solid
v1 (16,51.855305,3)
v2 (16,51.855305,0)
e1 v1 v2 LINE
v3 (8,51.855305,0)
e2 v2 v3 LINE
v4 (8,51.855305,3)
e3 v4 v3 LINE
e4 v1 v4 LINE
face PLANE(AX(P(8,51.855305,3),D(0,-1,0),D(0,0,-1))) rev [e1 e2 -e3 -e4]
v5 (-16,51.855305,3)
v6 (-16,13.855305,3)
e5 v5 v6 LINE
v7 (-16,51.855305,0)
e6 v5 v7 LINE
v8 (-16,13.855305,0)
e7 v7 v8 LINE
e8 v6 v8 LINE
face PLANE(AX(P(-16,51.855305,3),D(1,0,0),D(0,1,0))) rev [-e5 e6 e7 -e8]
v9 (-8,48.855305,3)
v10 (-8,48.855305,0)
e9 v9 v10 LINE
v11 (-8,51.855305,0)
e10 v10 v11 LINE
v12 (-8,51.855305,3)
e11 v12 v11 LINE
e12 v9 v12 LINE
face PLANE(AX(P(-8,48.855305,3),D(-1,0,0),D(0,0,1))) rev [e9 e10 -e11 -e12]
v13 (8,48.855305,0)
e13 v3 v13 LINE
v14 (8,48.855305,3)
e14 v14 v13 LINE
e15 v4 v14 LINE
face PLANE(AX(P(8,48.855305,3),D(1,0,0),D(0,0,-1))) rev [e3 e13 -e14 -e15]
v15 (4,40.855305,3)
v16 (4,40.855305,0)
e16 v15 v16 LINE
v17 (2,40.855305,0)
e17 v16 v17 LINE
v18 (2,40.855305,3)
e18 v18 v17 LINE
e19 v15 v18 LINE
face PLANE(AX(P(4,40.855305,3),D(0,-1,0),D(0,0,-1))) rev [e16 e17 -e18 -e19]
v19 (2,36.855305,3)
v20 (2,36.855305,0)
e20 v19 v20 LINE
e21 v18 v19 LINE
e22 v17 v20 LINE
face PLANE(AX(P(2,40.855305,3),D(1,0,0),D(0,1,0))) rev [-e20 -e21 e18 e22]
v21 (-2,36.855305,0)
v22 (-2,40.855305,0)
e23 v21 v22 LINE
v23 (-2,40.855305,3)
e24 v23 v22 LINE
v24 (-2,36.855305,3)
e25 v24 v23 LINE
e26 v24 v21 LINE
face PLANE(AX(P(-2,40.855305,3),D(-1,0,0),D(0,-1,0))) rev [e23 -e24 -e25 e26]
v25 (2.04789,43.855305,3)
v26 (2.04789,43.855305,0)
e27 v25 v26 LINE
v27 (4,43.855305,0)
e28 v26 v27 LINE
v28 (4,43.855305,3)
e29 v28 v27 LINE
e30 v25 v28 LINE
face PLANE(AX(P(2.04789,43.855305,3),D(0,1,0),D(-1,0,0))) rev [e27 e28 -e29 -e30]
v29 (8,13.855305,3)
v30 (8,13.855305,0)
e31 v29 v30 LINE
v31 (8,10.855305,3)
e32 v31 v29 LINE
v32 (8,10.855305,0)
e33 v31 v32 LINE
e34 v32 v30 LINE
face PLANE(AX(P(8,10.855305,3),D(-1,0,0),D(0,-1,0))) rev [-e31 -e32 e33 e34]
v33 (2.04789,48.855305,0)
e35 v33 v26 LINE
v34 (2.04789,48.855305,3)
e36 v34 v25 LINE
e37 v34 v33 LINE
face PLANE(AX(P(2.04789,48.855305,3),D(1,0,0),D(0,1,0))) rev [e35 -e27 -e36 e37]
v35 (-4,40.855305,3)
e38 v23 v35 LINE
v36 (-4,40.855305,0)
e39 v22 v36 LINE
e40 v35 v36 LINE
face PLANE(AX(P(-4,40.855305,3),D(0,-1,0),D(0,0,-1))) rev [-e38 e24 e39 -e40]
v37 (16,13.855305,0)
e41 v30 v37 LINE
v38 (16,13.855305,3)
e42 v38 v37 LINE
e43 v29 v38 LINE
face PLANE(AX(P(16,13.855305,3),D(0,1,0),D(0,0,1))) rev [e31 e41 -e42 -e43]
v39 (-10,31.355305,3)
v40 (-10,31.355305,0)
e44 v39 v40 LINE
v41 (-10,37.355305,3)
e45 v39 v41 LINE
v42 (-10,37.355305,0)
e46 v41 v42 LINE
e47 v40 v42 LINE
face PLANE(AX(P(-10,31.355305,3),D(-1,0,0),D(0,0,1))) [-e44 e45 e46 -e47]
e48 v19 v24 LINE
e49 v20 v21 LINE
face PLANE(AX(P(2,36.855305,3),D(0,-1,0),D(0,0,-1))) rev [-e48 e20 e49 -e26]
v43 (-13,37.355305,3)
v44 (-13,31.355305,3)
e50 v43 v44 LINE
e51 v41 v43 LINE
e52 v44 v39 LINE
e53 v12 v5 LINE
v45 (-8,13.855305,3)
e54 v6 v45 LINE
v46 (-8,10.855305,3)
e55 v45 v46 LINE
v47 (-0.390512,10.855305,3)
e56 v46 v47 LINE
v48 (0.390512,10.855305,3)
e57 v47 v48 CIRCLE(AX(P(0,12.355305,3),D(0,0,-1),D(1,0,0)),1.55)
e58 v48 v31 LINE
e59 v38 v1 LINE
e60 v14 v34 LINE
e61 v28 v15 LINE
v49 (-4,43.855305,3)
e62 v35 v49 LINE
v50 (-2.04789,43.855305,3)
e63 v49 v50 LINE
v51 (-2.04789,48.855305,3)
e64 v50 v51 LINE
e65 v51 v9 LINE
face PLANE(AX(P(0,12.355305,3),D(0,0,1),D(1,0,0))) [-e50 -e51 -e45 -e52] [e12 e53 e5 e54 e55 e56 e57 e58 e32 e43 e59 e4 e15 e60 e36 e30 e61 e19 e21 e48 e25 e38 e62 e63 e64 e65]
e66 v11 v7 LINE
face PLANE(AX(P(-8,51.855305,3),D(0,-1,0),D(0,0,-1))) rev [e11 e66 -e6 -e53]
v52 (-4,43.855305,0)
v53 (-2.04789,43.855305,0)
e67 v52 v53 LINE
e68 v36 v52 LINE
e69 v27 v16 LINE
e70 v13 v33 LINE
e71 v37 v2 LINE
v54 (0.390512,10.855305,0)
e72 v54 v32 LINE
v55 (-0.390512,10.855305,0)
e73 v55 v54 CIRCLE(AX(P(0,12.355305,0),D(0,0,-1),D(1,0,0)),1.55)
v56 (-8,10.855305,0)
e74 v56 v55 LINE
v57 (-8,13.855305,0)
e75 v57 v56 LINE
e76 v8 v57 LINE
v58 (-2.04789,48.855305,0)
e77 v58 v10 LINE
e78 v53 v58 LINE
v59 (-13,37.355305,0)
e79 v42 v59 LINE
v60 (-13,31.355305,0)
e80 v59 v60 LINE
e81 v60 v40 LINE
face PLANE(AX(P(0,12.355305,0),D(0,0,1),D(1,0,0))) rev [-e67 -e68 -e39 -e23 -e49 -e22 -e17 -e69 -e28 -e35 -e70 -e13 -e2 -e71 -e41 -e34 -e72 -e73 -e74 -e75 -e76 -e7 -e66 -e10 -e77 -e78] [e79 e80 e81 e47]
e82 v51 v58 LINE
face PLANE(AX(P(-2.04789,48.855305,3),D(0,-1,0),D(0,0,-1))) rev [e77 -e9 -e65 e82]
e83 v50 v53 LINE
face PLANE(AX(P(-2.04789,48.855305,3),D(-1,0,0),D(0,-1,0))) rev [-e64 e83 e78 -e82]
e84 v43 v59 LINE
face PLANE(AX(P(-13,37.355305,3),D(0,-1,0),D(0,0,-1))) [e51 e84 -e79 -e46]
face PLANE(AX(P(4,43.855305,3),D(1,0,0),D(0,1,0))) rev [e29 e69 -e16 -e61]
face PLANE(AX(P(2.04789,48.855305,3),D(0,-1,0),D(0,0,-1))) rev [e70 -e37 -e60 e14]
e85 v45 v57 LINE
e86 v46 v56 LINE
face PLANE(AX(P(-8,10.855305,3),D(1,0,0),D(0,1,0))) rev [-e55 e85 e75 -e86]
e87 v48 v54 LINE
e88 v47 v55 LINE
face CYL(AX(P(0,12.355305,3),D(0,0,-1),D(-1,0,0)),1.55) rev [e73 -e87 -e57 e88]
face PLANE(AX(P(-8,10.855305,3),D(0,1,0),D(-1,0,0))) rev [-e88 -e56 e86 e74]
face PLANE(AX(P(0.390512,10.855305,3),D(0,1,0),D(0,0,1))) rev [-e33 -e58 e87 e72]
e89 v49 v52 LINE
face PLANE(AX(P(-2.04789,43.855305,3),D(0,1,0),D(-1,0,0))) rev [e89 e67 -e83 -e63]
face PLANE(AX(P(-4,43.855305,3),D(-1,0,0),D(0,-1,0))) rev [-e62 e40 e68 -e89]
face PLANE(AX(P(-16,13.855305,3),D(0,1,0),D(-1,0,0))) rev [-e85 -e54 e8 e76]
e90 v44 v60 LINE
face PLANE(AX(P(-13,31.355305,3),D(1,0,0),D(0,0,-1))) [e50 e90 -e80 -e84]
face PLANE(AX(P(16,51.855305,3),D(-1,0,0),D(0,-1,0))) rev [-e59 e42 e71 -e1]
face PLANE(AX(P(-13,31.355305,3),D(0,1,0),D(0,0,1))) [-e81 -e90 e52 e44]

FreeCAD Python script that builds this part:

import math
import FreeCAD as App
import Part
import Sketcher

doc = App.newDocument("Part")
body = doc.addObject("PartDesign::Body", "Body")

sketch1 = doc.addObject("Sketcher::SketchObject", "Sketch")
body.addObject(sketch1)
sketch1.AttachmentSupport = (doc.XY_Plane, [""])
sketch1.MapMode = "FlatFace"
sketch1.addGeometry([
    Part.LineSegment(App.Vector(8, 48.9, 0), App.Vector(2, 48.9, 0)),
    Part.LineSegment(App.Vector(2, 48.9, 0), App.Vector(2, 43.9, 0)),
    Part.LineSegment(App.Vector(2, 43.9, 0), App.Vector(4, 43.9, 0)),
    Part.LineSegment(App.Vector(4, 43.9, 0), App.Vector(4, 40.9, 0)),
    Part.LineSegment(App.Vector(4, 40.9, 0), App.Vector(2, 40.9, 0)),
    Part.LineSegment(App.Vector(2, 40.9, 0), App.Vector(2, 36.9, 0)),
    Part.LineSegment(App.Vector(2, 36.9, 0), App.Vector(-2, 36.9, 0)),
    Part.LineSegment(App.Vector(-2, 36.9, 0), App.Vector(-2, 40.9, 0)),
    Part.LineSegment(App.Vector(-2, 40.9, 0), App.Vector(-4, 40.9, 0)),
    Part.LineSegment(App.Vector(-4, 40.9, 0), App.Vector(-4, 43.9, 0)),
    Part.LineSegment(App.Vector(-4, 43.9, 0), App.Vector(-2, 43.9, 0)),
    Part.LineSegment(App.Vector(-2, 43.9, 0), App.Vector(-2, 48.9, 0)),
    Part.LineSegment(App.Vector(-2, 48.9, 0), App.Vector(-8, 48.9, 0)),
    Part.LineSegment(App.Vector(-8, 48.9, 0), App.Vector(-8, 51.9, 0)),
    Part.LineSegment(App.Vector(-8, 51.9, 0), App.Vector(-16, 51.9, 0)),
    Part.LineSegment(App.Vector(-16, 51.9, 0), App.Vector(-16, 13.9, 0)),
    Part.LineSegment(App.Vector(-16, 13.9, 0), App.Vector(-8, 13.9, 0)),
    Part.LineSegment(App.Vector(-8, 13.9, 0), App.Vector(-8, 10.9, 0)),
    Part.LineSegment(App.Vector(-8, 10.9, 0), App.Vector(-0.4, 10.9, 0)),
    Part.ArcOfCircle(Part.Circle(App.Vector(0, 12.4, 0), App.Vector(0, 0, 1), 1.6), math.radians(-75), math.radians(255)),
    Part.LineSegment(App.Vector(0.4, 10.9, 0), App.Vector(8, 10.9, 0)),
    Part.LineSegment(App.Vector(8, 10.9, 0), App.Vector(8, 13.9, 0)),
    Part.LineSegment(App.Vector(8, 13.9, 0), App.Vector(16, 13.9, 0)),
    Part.LineSegment(App.Vector(16, 13.9, 0), App.Vector(16, 51.9, 0)),
    Part.LineSegment(App.Vector(16, 51.9, 0), App.Vector(8, 51.9, 0)),
    Part.LineSegment(App.Vector(8, 51.9, 0), App.Vector(8, 48.9, 0)),
    Part.LineSegment(App.Vector(-13, 31.4, 0), App.Vector(-13, 37.4, 0)),
    Part.LineSegment(App.Vector(-13, 37.4, 0), App.Vector(-10, 37.4, 0)),
    Part.LineSegment(App.Vector(-10, 37.4, 0), App.Vector(-10, 31.4, 0)),
    Part.LineSegment(App.Vector(-10, 31.4, 0), App.Vector(-13, 31.4, 0)),
], False)
sketch1.addConstraint([
    Sketcher.Constraint("Coincident", 0, 2, 1, 1),
    Sketcher.Constraint("Coincident", 1, 2, 2, 1),
    Sketcher.Constraint("Coincident", 2, 2, 3, 1),
    Sketcher.Constraint("Coincident", 3, 2, 4, 1),
    Sketcher.Constraint("Coincident", 4, 2, 5, 1),
    Sketcher.Constraint("Coincident", 5, 2, 6, 1),
    Sketcher.Constraint("Coincident", 6, 2, 7, 1),
    Sketcher.Constraint("Coincident", 7, 2, 8, 1),
    Sketcher.Constraint("Coincident", 8, 2, 9, 1),
    Sketcher.Constraint("Coincident", 9, 2, 10, 1),
    Sketcher.Constraint("Coincident", 10, 2, 11, 1),
    Sketcher.Constraint("Coincident", 11, 2, 12, 1),
    Sketcher.Constraint("Coincident", 12, 2, 13, 1),
    Sketcher.Constraint("Coincident", 13, 2, 14, 1),
    Sketcher.Constraint("Coincident", 14, 2, 15, 1),
    Sketcher.Constraint("Coincident", 15, 2, 16, 1),
    Sketcher.Constraint("Coincident", 16, 2, 17, 1),
    Sketcher.Constraint("Coincident", 17, 2, 18, 1),
    Sketcher.Constraint("Coincident", 18, 2, 19, 2),
    Sketcher.Constraint("Coincident", 19, 1, 20, 1),
    Sketcher.Constraint("Coincident", 20, 2, 21, 1),
    Sketcher.Constraint("Coincident", 21, 2, 22, 1),
    Sketcher.Constraint("Coincident", 22, 2, 23, 1),
    Sketcher.Constraint("Coincident", 23, 2, 24, 1),
    Sketcher.Constraint("Coincident", 24, 2, 25, 1),
    Sketcher.Constraint("Coincident", 25, 2, 0, 1),
    Sketcher.Constraint("Coincident", 26, 2, 27, 1),
    Sketcher.Constraint("Coincident", 27, 2, 28, 1),
    Sketcher.Constraint("Coincident", 28, 2, 29, 1),
    Sketcher.Constraint("Coincident", 29, 2, 26, 1),
    Sketcher.Constraint("Horizontal", 0),
    Sketcher.Constraint("Vertical", 1),
    Sketcher.Constraint("Horizontal", 2),
    Sketcher.Constraint("Vertical", 3),
    Sketcher.Constraint("Horizontal", 4),
    Sketcher.Constraint("Vertical", 5),
    Sketcher.Constraint("Horizontal", 6),
    Sketcher.Constraint("Vertical", 7),
    Sketcher.Constraint("Horizontal", 8),
    Sketcher.Constraint("Vertical", 9),
    Sketcher.Constraint("Horizontal", 10),
    Sketcher.Constraint("Vertical", 11),
    Sketcher.Constraint("Horizontal", 12),
    Sketcher.Constraint("Vertical", 13),
    Sketcher.Constraint("Horizontal", 14),
    Sketcher.Constraint("Vertical", 15),
    Sketcher.Constraint("Horizontal", 16),
    Sketcher.Constraint("Vertical", 17),
    Sketcher.Constraint("Horizontal", 18),
    Sketcher.Constraint("Horizontal", 20),
    Sketcher.Constraint("Vertical", 21),
    Sketcher.Constraint("Horizontal", 22),
    Sketcher.Constraint("Vertical", 23),
    Sketcher.Constraint("Horizontal", 24),
    Sketcher.Constraint("Vertical", 25),
    Sketcher.Constraint("Vertical", 26),
    Sketcher.Constraint("Horizontal", 27),
    Sketcher.Constraint("Vertical", 28),
    Sketcher.Constraint("Horizontal", 29),
    Sketcher.Constraint("Symmetric", 4, 2, 7, 2, -2),
    Sketcher.Constraint("Symmetric", 2, 2, 9, 2, -2),
    Sketcher.Constraint("Symmetric", 0, 2, 11, 2, -2),
    Sketcher.Constraint("Symmetric", 18, 2, 19, 1, -2),
    Sketcher.Constraint("Symmetric", 16, 2, 21, 2, -2),
    Sketcher.Constraint("Symmetric", 14, 2, 23, 2, -2),
    Sketcher.Constraint("Vertical", 13, 2, 16, 2),
    Sketcher.Constraint("Vertical", 21, 2, 24, 2),
    Sketcher.Constraint("Equal", 29, 3),
    Sketcher.Constraint("Equal", 6, 5),
    Sketcher.Constraint("Equal", 9, 13),
    Sketcher.Constraint("Equal", 13, 17),
    Sketcher.Constraint("DistanceX", 4, 2, 4, 1, 2.0),
    Sketcher.Constraint("DistanceX", 6, 2, 6, 1, 4.0),
    Sketcher.Constraint("DistanceX", 14, 2, 14, 1, 8.0),
    Sketcher.Constraint("DistanceX", 27, 1, 27, 2, 3.0),
    Sketcher.Constraint("DistanceY", 1, 2, 1, 1, 5.0),
    Sketcher.Constraint("DistanceY", 15, 2, 15, 1, 38.0),
    Sketcher.Constraint("DistanceY", 26, 1, 26, 2, 6.0),
    Sketcher.Constraint("Radius", 19, 1.55),
    Sketcher.Constraint("DistanceX", 12, 2, -1, 1, 8.0),
    Sketcher.Constraint("DistanceX", 26, 2, -1, 1, 13.0),
    Sketcher.Constraint("DistanceY", 19, 3, 0, 2, 36.5),
    Sketcher.Constraint("DistanceY", 26, 2, 8, 2, 3.5),
    Sketcher.Constraint("DistanceX", 0, 2, 0, 1, 5.95211),
    Sketcher.Constraint("DistanceY", -1, 1, 19, 3, 12.355305),
])
pad1 = doc.addObject("PartDesign::Pad", "Pad")
body.addObject(pad1)
pad1.Profile = sketch1
pad1.Length = 3

doc.recompute()
